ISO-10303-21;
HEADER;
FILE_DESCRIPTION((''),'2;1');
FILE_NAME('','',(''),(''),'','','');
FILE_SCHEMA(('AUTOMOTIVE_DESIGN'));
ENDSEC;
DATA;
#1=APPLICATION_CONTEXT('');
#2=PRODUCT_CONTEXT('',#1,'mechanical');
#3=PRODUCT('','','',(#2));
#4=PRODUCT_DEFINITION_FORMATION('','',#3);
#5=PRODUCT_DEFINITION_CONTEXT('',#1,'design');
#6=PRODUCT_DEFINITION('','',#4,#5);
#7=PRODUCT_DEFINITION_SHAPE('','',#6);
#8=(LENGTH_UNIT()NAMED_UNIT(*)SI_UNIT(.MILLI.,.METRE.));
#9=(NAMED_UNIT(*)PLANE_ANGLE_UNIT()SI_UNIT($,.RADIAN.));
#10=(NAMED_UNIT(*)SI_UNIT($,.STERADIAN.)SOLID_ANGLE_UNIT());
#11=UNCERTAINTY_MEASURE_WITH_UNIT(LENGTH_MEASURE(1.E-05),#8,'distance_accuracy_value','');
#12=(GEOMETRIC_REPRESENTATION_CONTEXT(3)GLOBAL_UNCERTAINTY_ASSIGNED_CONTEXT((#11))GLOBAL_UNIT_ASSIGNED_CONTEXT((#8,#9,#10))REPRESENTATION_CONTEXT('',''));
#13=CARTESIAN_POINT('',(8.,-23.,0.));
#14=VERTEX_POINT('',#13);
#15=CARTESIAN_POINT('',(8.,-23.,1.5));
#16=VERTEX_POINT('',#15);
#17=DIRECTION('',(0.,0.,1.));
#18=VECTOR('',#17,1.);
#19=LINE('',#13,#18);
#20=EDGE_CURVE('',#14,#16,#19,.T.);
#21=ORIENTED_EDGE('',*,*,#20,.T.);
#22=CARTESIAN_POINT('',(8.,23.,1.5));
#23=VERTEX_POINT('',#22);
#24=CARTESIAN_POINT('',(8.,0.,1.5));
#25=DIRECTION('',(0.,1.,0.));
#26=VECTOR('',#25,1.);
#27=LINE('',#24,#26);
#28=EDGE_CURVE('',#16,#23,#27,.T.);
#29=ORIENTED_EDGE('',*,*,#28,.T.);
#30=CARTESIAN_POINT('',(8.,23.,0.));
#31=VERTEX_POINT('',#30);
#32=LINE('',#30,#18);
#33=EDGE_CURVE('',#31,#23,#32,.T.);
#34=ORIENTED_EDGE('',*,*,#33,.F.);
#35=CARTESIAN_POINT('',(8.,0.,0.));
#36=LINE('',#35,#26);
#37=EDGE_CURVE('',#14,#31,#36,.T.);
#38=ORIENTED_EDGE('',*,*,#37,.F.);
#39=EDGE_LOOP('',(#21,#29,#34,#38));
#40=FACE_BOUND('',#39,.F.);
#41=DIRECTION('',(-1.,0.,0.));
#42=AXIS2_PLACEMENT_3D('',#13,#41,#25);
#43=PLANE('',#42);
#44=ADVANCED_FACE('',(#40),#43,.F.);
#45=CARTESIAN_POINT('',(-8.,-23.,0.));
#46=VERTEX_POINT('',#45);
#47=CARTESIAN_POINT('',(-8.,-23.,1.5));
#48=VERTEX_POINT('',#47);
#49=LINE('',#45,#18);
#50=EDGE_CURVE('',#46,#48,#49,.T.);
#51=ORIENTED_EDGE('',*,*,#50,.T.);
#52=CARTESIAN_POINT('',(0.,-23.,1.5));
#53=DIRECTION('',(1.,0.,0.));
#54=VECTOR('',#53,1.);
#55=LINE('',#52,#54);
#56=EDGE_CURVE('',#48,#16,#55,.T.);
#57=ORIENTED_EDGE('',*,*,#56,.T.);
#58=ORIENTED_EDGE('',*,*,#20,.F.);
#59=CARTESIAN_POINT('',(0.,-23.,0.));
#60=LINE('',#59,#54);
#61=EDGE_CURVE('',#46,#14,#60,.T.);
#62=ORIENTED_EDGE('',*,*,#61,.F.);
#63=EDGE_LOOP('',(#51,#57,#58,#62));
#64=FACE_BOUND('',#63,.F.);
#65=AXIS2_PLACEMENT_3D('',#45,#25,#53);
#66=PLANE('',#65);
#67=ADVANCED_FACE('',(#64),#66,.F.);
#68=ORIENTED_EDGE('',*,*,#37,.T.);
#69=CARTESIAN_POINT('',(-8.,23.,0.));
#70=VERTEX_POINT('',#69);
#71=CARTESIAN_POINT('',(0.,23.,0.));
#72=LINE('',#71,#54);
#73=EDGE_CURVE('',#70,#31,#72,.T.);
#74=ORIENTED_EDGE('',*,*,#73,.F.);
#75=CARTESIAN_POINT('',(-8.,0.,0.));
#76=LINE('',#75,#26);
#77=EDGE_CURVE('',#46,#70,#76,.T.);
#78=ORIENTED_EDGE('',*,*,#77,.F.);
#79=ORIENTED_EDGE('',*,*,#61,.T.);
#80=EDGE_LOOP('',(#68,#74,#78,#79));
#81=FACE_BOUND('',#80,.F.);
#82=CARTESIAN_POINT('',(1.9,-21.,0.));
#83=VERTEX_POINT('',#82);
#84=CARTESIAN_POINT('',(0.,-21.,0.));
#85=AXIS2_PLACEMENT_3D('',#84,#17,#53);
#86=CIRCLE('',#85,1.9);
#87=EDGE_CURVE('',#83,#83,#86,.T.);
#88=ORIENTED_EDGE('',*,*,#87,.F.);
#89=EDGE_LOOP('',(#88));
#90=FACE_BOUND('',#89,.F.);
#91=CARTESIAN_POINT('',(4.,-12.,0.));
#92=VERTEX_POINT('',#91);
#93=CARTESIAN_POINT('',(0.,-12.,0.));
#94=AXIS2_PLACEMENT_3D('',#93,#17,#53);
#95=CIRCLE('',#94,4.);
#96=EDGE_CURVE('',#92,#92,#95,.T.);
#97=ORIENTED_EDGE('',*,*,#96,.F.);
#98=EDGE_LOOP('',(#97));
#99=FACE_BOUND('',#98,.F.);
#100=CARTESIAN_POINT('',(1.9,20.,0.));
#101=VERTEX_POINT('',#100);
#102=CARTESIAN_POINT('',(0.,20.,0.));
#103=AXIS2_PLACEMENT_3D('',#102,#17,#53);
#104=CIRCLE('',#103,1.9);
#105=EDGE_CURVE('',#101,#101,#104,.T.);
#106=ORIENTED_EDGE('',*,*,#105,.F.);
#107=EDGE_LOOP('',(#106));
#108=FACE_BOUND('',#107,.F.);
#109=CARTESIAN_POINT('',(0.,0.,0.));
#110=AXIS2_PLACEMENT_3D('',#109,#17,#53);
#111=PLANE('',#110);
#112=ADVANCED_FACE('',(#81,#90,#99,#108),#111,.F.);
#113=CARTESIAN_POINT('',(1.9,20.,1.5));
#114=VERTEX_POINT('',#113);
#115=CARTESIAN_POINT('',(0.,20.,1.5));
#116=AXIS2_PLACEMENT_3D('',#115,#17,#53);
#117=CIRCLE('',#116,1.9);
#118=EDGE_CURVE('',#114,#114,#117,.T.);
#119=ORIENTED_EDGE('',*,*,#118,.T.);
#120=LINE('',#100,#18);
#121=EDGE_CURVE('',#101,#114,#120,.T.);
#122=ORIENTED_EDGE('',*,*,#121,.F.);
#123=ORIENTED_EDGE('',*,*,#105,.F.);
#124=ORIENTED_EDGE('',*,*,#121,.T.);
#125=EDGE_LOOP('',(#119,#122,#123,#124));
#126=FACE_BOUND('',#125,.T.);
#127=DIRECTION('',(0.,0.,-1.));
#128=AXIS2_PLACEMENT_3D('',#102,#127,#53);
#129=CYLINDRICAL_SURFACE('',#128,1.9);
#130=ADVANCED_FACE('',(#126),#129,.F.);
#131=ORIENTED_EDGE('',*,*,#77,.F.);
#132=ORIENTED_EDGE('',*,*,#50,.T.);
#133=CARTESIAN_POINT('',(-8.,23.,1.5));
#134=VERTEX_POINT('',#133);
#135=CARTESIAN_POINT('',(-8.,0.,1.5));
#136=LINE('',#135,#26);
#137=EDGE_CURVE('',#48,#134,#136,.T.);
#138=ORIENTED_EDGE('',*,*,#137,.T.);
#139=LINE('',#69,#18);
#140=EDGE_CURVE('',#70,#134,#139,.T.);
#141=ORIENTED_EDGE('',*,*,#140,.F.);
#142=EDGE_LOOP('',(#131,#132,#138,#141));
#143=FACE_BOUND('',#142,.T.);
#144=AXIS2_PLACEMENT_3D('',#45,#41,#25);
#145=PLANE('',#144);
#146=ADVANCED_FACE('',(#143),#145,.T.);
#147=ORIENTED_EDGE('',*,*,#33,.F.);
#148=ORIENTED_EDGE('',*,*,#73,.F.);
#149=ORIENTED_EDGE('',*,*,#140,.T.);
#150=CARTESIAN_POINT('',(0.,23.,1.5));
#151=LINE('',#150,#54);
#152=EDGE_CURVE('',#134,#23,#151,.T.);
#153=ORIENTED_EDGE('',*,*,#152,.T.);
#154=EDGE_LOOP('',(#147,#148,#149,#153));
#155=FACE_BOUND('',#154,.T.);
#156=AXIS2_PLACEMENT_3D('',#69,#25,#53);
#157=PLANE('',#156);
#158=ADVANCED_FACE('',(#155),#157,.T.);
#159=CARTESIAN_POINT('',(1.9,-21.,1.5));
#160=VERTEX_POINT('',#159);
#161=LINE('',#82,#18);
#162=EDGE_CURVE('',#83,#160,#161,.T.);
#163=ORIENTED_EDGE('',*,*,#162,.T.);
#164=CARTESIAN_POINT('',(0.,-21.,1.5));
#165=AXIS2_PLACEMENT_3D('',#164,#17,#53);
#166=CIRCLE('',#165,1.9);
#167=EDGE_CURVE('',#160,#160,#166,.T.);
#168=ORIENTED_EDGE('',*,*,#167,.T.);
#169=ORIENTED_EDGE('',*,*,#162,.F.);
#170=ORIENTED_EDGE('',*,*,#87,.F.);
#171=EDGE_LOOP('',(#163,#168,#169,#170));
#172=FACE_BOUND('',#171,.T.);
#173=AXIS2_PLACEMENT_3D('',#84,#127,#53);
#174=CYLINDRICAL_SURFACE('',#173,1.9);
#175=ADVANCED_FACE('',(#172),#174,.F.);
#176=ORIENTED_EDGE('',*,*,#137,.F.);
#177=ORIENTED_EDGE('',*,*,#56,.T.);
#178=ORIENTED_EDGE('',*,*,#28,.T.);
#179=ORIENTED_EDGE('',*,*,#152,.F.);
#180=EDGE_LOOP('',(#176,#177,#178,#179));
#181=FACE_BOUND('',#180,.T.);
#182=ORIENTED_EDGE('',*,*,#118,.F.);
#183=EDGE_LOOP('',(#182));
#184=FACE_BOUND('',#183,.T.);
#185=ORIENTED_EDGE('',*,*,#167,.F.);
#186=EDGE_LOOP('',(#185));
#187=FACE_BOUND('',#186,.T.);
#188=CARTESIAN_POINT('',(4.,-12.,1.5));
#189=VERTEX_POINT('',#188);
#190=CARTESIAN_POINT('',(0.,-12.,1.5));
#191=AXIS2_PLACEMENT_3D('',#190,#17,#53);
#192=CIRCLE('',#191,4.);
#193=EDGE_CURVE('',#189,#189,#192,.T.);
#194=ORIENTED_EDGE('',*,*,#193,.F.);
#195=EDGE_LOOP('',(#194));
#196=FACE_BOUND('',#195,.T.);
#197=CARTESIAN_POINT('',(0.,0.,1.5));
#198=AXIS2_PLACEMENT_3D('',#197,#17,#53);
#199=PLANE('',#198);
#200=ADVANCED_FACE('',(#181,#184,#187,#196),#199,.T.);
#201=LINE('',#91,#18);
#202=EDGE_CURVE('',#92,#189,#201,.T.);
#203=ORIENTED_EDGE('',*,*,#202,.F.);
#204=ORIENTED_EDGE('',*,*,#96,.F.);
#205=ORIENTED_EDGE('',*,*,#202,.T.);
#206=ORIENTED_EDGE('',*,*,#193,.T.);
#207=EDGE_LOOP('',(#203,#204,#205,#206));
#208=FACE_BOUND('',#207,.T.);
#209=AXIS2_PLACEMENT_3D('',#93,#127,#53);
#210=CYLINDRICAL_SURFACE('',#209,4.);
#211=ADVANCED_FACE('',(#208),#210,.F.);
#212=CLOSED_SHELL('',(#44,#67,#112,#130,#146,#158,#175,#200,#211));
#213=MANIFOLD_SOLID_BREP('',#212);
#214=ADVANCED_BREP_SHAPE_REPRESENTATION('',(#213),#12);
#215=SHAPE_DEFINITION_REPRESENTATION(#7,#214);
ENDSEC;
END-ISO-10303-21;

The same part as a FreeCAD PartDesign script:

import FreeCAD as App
import Part
import Sketcher

V = App.Vector
Q = App.Units.Quantity


def add_polygon(sketch, points):
    """Adds a closed chain of lines whose ends are joined by coincident constraints."""
    first, n = sketch.GeometryCount, len(points)
    for a, b in zip(points, points[1:] + points[:1]):
        sketch.addGeometry(Part.LineSegment(App.Vector(*a, 0), App.Vector(*b, 0)), False)
    for i in range(n):
        sketch.addConstraint(Sketcher.Constraint("Coincident", first + i, 2, first + (i + 1) % n, 1))

doc = App.newDocument("Part")
body = doc.addObject("PartDesign::Body", "Body")

# Sketch on XY plane
sketch1 = doc.addObject("Sketcher::SketchObject", "Sketch")
body.addObject(sketch1)
sketch1.AttachmentSupport = (doc.XY_Plane, [""])
sketch1.MapMode = "FlatFace"
add_polygon(sketch1, [(-8, 23), (-8, -23), (8, -23), (8, 23)])  # lines 0-3
sketch1.addGeometry(Part.Circle(V(0, -21, 0), V(0, 0, 1), 1.9), False)  # 4
sketch1.addGeometry(Part.Circle(V(0, -12, 0), V(0, 0, 1), 4), False)  # 5
sketch1.addGeometry(Part.Circle(V(0, 20, 0), V(0, 0, 1), 1.9), False)  # 6
sketch1.addConstraint([
    Sketcher.Constraint("Vertical", 0),
    Sketcher.Constraint("Horizontal", 1),
    Sketcher.Constraint("Vertical", 2),
    Sketcher.Constraint("Horizontal", 3),
    Sketcher.Constraint("Equal", 4, 6),
    Sketcher.Constraint("Symmetric", 0, 2, 2, 2, -1, 1),
    Sketcher.Constraint("PointOnObject", 4, 3, -2),
    Sketcher.Constraint("PointOnObject", 5, 3, -2),
    Sketcher.Constraint("PointOnObject", 6, 3, -2),
    Sketcher.Constraint("Diameter", 5, Q("8 mm")),
    Sketcher.Constraint("Diameter", 4, Q("3.8 mm")),
    Sketcher.Constraint("DistanceX", 1, 1, 1, 2, Q("16 mm")),
    Sketcher.Constraint("DistanceY", 0, 2, 0, 1, Q("46 mm")),
    Sketcher.Constraint("DistanceY", 4, 3, -1, 1, Q("21 mm")),
    Sketcher.Constraint("DistanceY", 5, 3, -1, 1, Q("12 mm")),
    Sketcher.Constraint("DistanceY", -1, 1, 6, 3, Q("20 mm")),
])
pad1 = doc.addObject("PartDesign::Pad", "Pad")
body.addObject(pad1)
pad1.Profile = sketch1
pad1.Length = 1.5

doc.recompute()
